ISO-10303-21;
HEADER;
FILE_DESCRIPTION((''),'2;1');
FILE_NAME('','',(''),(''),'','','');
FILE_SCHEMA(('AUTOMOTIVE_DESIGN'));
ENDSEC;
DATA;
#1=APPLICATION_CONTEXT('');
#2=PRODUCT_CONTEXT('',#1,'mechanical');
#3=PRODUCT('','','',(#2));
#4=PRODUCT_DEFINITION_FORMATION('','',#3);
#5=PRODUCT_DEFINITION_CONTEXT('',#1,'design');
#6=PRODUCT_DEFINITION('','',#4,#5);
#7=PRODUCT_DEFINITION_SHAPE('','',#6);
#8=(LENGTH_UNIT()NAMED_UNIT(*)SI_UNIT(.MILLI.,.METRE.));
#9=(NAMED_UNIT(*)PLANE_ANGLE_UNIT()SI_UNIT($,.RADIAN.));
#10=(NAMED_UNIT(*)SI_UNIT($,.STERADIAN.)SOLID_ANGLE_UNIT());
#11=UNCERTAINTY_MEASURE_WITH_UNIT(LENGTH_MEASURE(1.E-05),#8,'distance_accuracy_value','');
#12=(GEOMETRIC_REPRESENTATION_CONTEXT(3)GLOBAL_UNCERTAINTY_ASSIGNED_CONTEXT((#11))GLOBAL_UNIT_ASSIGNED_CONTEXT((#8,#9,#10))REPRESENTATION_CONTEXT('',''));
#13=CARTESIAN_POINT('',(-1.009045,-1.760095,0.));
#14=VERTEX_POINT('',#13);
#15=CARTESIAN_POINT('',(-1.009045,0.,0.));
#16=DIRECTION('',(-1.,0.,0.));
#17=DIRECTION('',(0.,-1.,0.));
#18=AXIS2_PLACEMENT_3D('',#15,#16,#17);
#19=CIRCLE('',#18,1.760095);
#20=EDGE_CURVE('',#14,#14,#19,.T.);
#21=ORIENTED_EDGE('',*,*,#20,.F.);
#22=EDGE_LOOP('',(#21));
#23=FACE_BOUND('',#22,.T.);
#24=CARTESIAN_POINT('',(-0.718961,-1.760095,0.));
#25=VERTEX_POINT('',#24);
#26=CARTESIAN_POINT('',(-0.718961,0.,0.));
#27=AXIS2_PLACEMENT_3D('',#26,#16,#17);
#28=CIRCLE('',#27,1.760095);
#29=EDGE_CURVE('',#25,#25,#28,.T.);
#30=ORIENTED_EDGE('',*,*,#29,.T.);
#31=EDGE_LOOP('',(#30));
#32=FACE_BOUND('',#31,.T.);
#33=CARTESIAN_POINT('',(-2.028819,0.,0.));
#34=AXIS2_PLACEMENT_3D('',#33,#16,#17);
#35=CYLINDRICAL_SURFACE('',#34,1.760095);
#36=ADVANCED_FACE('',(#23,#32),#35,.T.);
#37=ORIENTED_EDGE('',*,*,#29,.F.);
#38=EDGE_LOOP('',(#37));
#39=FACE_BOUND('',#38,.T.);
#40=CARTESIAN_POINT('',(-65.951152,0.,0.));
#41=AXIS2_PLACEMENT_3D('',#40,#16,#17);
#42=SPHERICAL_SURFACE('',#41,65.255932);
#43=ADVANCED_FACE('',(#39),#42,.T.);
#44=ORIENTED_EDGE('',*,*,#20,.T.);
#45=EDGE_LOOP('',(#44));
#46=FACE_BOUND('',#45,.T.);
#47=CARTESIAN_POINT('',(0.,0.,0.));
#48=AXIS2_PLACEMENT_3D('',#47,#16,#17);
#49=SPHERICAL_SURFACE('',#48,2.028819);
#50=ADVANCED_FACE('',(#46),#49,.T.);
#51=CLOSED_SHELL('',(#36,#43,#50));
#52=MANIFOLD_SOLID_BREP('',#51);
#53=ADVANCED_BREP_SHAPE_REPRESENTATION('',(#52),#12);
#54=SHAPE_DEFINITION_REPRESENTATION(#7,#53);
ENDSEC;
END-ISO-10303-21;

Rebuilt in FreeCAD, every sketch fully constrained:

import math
import FreeCAD as App
import Part
import Sketcher
Q = App.Units.Quantity

doc = App.newDocument("Part")
params = doc.addObject("Spreadsheet::Sheet", "Params")
for row, (alias, value) in enumerate([
    ("revolution_angle", "360 deg"),
], start=1):
    params.set(f"A{row}", alias)
    params.set(f"B{row}", "=" + value)
    params.setAlias(f"B{row}", alias)

body = doc.addObject("PartDesign::Body", "Body")

# Sketch on XY plane
sketch1 = body.newObject("Sketcher::SketchObject", "Sketch")
sketch1.AttachmentSupport = (doc.getObject("XY_Plane"), [""])
sketch1.MapMode = "FlatFace"
sketch1.addGeometry(Part.LineSegment(App.Vector(-0.7, 0, 0), App.Vector(-2.03, 0, 0)), False)
sketch1.addGeometry(Part.ArcOfCircle(Part.Circle(App.Vector(0, 0, 0), App.Vector(0, 0, 1), 2.03), math.radians(180), math.radians(240)), False)
sketch1.addGeometry(Part.LineSegment(App.Vector(-1.01, -1.76, 0), App.Vector(-0.72, -1.76, 0)), False)
sketch1.addGeometry(Part.ArcOfCircle(Part.Circle(App.Vector(-65.95, 0, 0), App.Vector(0, 0, 1), 65.26), math.radians(-1.55), math.radians(0)), False)
sketch1.addConstraint(Sketcher.Constraint("Coincident", 0, 2, 1, 1))
sketch1.addConstraint(Sketcher.Constraint("Coincident", 1, 2, 2, 1))
sketch1.addConstraint(Sketcher.Constraint("Coincident", 2, 2, 3, 1))
sketch1.addConstraint(Sketcher.Constraint("Coincident", 3, 2, 0, 1))
sketch1.addConstraint(Sketcher.Constraint("Horizontal", 0))
sketch1.addConstraint(Sketcher.Constraint("Horizontal", 2))
sketch1.addConstraint(Sketcher.Constraint("Coincident", 1, 3, -1, 1))
sketch1.addConstraint(Sketcher.Constraint("PointOnObject", 3, 3, -1))
sketch1.addConstraint(Sketcher.Constraint("PointOnObject", 0, 2, -1))
sketch1.addConstraint(Sketcher.Constraint("Radius", 1, Q("2.028819 mm")))
sketch1.addConstraint(Sketcher.Constraint("Radius", 3, Q("65.255932 mm")))
sketch1.addConstraint(Sketcher.Constraint("DistanceX", 0, 2, 0, 1, Q("1.333599 mm")))
sketch1.addConstraint(Sketcher.Constraint("DistanceX", 2, 1, 2, 2, Q("0.290084 mm")))
revolution = body.newObject("PartDesign::Revolution", "Revolution")
revolution.Profile = sketch1
revolution.ReferenceAxis = (sketch1, ["H_Axis"])
revolution.setExpression("Angle", "Params.revolution_angle")

doc.recompute()
